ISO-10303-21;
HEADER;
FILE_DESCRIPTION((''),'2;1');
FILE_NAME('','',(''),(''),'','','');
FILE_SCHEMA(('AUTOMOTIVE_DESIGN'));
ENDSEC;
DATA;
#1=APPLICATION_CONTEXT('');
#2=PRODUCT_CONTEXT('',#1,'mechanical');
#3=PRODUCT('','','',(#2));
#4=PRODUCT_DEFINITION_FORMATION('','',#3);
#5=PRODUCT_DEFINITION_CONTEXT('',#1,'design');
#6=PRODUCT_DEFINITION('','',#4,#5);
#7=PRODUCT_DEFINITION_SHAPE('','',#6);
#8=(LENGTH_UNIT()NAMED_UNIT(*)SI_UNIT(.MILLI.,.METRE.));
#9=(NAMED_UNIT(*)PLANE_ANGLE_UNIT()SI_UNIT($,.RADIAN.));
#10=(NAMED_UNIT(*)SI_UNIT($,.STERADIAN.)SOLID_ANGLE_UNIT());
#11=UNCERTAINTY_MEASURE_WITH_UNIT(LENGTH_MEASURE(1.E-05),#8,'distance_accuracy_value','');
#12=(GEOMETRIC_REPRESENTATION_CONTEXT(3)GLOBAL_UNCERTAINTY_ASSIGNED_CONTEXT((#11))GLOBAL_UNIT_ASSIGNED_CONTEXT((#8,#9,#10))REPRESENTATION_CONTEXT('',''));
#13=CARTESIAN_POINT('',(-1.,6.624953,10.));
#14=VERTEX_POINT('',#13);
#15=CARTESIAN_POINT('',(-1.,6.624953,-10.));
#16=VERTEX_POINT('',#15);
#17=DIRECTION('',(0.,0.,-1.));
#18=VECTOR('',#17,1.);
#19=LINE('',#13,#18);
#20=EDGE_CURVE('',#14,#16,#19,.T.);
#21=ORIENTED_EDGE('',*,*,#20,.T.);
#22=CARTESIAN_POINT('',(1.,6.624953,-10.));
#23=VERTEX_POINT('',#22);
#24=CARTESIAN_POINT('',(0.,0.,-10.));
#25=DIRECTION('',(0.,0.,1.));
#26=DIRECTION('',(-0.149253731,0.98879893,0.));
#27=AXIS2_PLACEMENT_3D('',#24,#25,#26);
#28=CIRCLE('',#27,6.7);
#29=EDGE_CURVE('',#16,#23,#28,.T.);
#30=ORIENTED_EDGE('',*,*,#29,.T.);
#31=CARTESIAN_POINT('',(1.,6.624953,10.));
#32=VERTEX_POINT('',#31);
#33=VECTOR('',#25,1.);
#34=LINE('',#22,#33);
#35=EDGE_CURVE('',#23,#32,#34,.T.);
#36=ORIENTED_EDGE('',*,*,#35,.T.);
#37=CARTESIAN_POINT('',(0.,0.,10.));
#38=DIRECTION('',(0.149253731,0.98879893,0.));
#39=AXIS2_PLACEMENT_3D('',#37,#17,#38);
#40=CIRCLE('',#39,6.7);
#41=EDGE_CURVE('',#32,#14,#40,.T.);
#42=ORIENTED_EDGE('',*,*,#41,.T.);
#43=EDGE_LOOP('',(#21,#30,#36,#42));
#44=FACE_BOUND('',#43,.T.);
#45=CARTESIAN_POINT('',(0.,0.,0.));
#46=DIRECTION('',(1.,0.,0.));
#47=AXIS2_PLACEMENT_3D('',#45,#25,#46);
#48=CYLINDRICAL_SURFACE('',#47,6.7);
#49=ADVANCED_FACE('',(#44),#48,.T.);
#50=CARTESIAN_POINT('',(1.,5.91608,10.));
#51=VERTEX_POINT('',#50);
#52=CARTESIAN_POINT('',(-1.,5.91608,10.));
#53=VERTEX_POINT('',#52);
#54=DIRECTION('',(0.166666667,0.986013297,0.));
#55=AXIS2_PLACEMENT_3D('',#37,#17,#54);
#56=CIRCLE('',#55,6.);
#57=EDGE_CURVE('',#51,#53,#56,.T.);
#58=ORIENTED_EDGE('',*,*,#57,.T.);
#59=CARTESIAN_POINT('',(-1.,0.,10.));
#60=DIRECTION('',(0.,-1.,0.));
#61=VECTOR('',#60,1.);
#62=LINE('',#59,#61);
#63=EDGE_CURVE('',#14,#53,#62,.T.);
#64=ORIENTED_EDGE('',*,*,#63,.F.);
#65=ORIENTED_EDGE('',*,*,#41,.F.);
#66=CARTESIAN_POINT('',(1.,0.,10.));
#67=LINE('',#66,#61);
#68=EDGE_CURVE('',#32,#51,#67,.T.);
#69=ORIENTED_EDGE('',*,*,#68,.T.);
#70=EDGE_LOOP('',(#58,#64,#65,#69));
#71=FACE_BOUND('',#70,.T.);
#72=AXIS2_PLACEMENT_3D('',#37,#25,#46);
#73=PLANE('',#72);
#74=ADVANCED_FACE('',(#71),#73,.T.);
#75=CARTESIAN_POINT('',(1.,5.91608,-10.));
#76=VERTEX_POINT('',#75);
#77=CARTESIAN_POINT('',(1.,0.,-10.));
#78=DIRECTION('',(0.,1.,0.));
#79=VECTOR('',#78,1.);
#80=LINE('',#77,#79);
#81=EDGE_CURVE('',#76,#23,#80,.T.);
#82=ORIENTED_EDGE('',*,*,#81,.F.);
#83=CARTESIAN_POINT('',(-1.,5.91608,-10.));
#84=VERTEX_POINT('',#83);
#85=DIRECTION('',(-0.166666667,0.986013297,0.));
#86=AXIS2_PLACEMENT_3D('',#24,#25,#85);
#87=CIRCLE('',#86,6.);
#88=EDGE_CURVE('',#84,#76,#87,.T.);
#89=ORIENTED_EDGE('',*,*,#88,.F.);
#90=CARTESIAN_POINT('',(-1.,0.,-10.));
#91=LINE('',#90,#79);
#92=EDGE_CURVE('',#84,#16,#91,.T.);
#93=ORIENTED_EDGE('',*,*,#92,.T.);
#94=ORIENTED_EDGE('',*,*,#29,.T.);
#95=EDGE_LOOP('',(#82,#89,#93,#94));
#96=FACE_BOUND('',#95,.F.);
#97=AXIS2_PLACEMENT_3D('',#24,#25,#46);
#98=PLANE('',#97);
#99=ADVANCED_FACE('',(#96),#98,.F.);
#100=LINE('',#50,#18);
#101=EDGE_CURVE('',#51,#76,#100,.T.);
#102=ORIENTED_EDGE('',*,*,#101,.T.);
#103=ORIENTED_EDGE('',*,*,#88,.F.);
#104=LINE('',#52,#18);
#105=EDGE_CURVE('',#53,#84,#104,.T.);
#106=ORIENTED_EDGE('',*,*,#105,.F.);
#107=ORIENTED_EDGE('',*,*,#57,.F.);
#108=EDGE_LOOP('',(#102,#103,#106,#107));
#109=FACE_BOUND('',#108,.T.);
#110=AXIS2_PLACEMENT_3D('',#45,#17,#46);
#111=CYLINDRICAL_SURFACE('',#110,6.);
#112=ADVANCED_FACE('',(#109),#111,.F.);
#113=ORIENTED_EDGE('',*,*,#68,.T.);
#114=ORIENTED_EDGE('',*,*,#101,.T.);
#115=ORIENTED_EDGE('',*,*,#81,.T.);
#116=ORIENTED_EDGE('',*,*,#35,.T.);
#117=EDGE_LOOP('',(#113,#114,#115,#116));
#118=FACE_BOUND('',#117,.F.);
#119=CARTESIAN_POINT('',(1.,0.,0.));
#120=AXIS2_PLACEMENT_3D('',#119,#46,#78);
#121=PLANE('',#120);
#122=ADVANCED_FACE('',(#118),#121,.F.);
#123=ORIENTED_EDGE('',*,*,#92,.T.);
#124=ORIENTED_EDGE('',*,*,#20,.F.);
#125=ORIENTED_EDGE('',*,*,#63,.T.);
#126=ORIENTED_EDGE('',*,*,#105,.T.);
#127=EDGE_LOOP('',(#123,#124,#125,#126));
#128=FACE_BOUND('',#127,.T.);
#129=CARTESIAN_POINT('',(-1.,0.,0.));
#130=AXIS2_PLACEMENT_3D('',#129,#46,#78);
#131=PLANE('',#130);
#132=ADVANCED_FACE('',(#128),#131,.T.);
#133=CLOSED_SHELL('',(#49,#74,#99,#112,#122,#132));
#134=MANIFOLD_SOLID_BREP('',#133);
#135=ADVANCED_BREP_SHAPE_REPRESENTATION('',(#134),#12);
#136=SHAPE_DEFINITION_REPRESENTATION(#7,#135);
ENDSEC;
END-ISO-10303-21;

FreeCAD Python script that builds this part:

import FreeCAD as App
import Part
import Sketcher
from FreeCAD import Vector

doc = App.newDocument("Part")
params = doc.addObject("Spreadsheet::Sheet", "Params")
for row, (alias, value) in enumerate([
    ("sketch1_diameter", "12 mm"),
    ("sketch1_diameter2", "13.4 mm"),
    ("pad1_length", "20 mm"),
    ("sketch2_width", "2 mm"),
    ("sketch2_height", "6.7 mm"),
], start=1):
    params.set(f"A{row}", alias)
    params.set(f"B{row}", "=" + value)
    params.setAlias(f"B{row}", alias)

body = doc.addObject("PartDesign::Body", "Body")

# Sketch on XY plane
sketch1 = body.newObject("Sketcher::SketchObject", "Sketch")
sketch1.AttachmentSupport = (doc.getObject("XY_Plane"), [""])
sketch1.MapMode = "FlatFace"
sketch1.addGeometry(Part.Circle(Vector(0, 0, 0), Vector(0, 0, 1), 7), False)
sketch1.addGeometry(Part.Circle(Vector(0, 0, 0), Vector(0, 0, 1), 6), False)
sketch1.addConstraint(Sketcher.Constraint("Coincident", 0, 3, -1, 1))
sketch1.addConstraint(Sketcher.Constraint("Coincident", 1, 3, -1, 1))
sketch1.addConstraint(Sketcher.Constraint("Diameter", 1, 12.0))
sketch1.addConstraint(Sketcher.Constraint("Diameter", 0, 13.4))
sketch1.setExpression("Constraints[2]", "Params.sketch1_diameter")
sketch1.setExpression("Constraints[3]", "Params.sketch1_diameter2")
pad1 = body.newObject("PartDesign::Pad", "Pad")
pad1.Profile = sketch1
pad1.setExpression("Length", "Params.pad1_length")
pad1.Midplane = True

# Sketch on XY plane
sketch2 = body.newObject("Sketcher::SketchObject", "Sketch001")
sketch2.AttachmentSupport = (doc.getObject("XY_Plane"), [""])
sketch2.MapMode = "FlatFace"
sketch2.addGeometry(Part.LineSegment(Vector(-1, 6.7, 0), Vector(-1, 0, 0)), False)
sketch2.addGeometry(Part.LineSegment(Vector(-1, 0, 0), Vector(1, 0, 0)), False)
sketch2.addGeometry(Part.LineSegment(Vector(1, 0, 0), Vector(1, 6.7, 0)), False)
sketch2.addGeometry(Part.LineSegment(Vector(1, 6.7, 0), Vector(-1, 6.7, 0)), False)
sketch2.addConstraint(Sketcher.Constraint("Coincident", 0, 2, 1, 1))
sketch2.addConstraint(Sketcher.Constraint("Coincident", 1, 2, 2, 1))
sketch2.addConstraint(Sketcher.Constraint("Coincident", 2, 2, 3, 1))
sketch2.addConstraint(Sketcher.Constraint("Coincident", 3, 2, 0, 1))
sketch2.addConstraint(Sketcher.Constraint("Vertical", 0))
sketch2.addConstraint(Sketcher.Constraint("Horizontal", 1))
sketch2.addConstraint(Sketcher.Constraint("Vertical", 2))
sketch2.addConstraint(Sketcher.Constraint("Horizontal", 3))
sketch2.addConstraint(Sketcher.Constraint("Symmetric", 0, 2, 1, 2, -1, 1))
sketch2.addConstraint(Sketcher.Constraint("DistanceX", 1, 1, 1, 2, 2.0))
sketch2.addConstraint(Sketcher.Constraint("DistanceY", 0, 2, 0, 1, 6.7))
sketch2.setExpression("Constraints[9]", "Params.sketch2_width")
sketch2.setExpression("Constraints[10]", "Params.sketch2_height")
pocket1 = body.newObject("PartDesign::Pocket", "Pocket")
pocket1.Profile = sketch2
pocket1.Type = "ThroughAll"
pocket1.Midplane = True

doc.recompute()
